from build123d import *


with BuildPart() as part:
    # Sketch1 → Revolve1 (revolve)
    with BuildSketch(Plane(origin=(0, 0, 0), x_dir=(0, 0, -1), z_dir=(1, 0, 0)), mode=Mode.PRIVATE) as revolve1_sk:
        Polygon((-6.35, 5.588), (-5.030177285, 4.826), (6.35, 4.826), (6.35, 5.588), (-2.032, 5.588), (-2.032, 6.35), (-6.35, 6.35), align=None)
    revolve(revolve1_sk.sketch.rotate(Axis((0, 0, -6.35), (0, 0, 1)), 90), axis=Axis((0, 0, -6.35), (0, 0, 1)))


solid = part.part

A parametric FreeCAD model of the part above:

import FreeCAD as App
import Part
import Sketcher
Q = App.Units.Quantity

doc = App.newDocument("Part")
params = doc.addObject("Spreadsheet::Sheet", "Params")
for row, (alias, value) in enumerate([
    ("sketch1_width", "0.03 in"),
    ("sketch1_height", "0.33 in"),
    ("sketch1_height2", "0.17 in"),
    ("revolution_angle", "360 deg"),
], start=1):
    params.set(f"A{row}", alias)
    params.set(f"B{row}", "=" + value)
    params.setAlias(f"B{row}", alias)

body = doc.addObject("PartDesign::Body", "Body")

# Sketch on YZ plane
sketch1 = body.newObject("Sketcher::SketchObject", "Sketch")
sketch1.AttachmentSupport = (doc.getObject("YZ_Plane"), [""])
sketch1.MapMode = "FlatFace"
sketch1.addGeometry([
    Part.LineSegment(App.Vector(5.6, 6.3, 0), App.Vector(4.8, 5, 0)),  # 0
    Part.LineSegment(App.Vector(4.8, 5, 0), App.Vector(4.8, -6.3, 0)),  # 1
    Part.LineSegment(App.Vector(4.8, -6.3, 0), App.Vector(5.6, -6.3, 0)),  # 2
    Part.LineSegment(App.Vector(5.6, -6.3, 0), App.Vector(5.6, 2, 0)),  # 3
    Part.LineSegment(App.Vector(5.6, 2, 0), App.Vector(6.3, 2, 0)),  # 4
    Part.LineSegment(App.Vector(6.3, 2, 0), App.Vector(6.3, 6.3, 0)),  # 5
    Part.LineSegment(App.Vector(6.3, 6.3, 0), App.Vector(5.6, 6.3, 0)),  # 6
], False)
sketch1.addConstraint([
    Sketcher.Constraint("Coincident", 0, 2, 1, 1),
    Sketcher.Constraint("Coincident", 1, 2, 2, 1),
    Sketcher.Constraint("Coincident", 2, 2, 3, 1),
    Sketcher.Constraint("Coincident", 3, 2, 4, 1),
    Sketcher.Constraint("Coincident", 4, 2, 5, 1),
    Sketcher.Constraint("Coincident", 5, 2, 6, 1),
    Sketcher.Constraint("Coincident", 6, 2, 0, 1),
    Sketcher.Constraint("Vertical", 1),
    Sketcher.Constraint("Horizontal", 2),
    Sketcher.Constraint("Vertical", 3),
    Sketcher.Constraint("Horizontal", 4),
    Sketcher.Constraint("Vertical", 5),
    Sketcher.Constraint("Horizontal", 6),
    Sketcher.Constraint("Symmetric", 2, 2, 6, 2, -1),
    Sketcher.Constraint("Equal", 2, 4),
    Sketcher.Constraint("Angle", 0, Q("-120 deg")),
    Sketcher.Constraint("DistanceX", 2, 1, 2, 2, Q("0.03 in")),
    Sketcher.Constraint("DistanceY", 3, 1, 3, 2, Q("0.33 in")),
    Sketcher.Constraint("DistanceY", 5, 1, 5, 2, Q("0.17 in")),
    Sketcher.Constraint("DistanceX", -1, 1, 0, 2, Q("0.19 in")),
])
sketch1.setExpression("Constraints[16]", "Params.sketch1_width")
sketch1.setExpression("Constraints[17]", "Params.sketch1_height")
sketch1.setExpression("Constraints[18]", "Params.sketch1_height2")
revolution = body.newObject("PartDesign::Revolution", "Revolution")
revolution.Profile = sketch1
revolution.ReferenceAxis = (sketch1, ["V_Axis"])
revolution.setExpression("Angle", "Params.revolution_angle")

doc.recompute()
